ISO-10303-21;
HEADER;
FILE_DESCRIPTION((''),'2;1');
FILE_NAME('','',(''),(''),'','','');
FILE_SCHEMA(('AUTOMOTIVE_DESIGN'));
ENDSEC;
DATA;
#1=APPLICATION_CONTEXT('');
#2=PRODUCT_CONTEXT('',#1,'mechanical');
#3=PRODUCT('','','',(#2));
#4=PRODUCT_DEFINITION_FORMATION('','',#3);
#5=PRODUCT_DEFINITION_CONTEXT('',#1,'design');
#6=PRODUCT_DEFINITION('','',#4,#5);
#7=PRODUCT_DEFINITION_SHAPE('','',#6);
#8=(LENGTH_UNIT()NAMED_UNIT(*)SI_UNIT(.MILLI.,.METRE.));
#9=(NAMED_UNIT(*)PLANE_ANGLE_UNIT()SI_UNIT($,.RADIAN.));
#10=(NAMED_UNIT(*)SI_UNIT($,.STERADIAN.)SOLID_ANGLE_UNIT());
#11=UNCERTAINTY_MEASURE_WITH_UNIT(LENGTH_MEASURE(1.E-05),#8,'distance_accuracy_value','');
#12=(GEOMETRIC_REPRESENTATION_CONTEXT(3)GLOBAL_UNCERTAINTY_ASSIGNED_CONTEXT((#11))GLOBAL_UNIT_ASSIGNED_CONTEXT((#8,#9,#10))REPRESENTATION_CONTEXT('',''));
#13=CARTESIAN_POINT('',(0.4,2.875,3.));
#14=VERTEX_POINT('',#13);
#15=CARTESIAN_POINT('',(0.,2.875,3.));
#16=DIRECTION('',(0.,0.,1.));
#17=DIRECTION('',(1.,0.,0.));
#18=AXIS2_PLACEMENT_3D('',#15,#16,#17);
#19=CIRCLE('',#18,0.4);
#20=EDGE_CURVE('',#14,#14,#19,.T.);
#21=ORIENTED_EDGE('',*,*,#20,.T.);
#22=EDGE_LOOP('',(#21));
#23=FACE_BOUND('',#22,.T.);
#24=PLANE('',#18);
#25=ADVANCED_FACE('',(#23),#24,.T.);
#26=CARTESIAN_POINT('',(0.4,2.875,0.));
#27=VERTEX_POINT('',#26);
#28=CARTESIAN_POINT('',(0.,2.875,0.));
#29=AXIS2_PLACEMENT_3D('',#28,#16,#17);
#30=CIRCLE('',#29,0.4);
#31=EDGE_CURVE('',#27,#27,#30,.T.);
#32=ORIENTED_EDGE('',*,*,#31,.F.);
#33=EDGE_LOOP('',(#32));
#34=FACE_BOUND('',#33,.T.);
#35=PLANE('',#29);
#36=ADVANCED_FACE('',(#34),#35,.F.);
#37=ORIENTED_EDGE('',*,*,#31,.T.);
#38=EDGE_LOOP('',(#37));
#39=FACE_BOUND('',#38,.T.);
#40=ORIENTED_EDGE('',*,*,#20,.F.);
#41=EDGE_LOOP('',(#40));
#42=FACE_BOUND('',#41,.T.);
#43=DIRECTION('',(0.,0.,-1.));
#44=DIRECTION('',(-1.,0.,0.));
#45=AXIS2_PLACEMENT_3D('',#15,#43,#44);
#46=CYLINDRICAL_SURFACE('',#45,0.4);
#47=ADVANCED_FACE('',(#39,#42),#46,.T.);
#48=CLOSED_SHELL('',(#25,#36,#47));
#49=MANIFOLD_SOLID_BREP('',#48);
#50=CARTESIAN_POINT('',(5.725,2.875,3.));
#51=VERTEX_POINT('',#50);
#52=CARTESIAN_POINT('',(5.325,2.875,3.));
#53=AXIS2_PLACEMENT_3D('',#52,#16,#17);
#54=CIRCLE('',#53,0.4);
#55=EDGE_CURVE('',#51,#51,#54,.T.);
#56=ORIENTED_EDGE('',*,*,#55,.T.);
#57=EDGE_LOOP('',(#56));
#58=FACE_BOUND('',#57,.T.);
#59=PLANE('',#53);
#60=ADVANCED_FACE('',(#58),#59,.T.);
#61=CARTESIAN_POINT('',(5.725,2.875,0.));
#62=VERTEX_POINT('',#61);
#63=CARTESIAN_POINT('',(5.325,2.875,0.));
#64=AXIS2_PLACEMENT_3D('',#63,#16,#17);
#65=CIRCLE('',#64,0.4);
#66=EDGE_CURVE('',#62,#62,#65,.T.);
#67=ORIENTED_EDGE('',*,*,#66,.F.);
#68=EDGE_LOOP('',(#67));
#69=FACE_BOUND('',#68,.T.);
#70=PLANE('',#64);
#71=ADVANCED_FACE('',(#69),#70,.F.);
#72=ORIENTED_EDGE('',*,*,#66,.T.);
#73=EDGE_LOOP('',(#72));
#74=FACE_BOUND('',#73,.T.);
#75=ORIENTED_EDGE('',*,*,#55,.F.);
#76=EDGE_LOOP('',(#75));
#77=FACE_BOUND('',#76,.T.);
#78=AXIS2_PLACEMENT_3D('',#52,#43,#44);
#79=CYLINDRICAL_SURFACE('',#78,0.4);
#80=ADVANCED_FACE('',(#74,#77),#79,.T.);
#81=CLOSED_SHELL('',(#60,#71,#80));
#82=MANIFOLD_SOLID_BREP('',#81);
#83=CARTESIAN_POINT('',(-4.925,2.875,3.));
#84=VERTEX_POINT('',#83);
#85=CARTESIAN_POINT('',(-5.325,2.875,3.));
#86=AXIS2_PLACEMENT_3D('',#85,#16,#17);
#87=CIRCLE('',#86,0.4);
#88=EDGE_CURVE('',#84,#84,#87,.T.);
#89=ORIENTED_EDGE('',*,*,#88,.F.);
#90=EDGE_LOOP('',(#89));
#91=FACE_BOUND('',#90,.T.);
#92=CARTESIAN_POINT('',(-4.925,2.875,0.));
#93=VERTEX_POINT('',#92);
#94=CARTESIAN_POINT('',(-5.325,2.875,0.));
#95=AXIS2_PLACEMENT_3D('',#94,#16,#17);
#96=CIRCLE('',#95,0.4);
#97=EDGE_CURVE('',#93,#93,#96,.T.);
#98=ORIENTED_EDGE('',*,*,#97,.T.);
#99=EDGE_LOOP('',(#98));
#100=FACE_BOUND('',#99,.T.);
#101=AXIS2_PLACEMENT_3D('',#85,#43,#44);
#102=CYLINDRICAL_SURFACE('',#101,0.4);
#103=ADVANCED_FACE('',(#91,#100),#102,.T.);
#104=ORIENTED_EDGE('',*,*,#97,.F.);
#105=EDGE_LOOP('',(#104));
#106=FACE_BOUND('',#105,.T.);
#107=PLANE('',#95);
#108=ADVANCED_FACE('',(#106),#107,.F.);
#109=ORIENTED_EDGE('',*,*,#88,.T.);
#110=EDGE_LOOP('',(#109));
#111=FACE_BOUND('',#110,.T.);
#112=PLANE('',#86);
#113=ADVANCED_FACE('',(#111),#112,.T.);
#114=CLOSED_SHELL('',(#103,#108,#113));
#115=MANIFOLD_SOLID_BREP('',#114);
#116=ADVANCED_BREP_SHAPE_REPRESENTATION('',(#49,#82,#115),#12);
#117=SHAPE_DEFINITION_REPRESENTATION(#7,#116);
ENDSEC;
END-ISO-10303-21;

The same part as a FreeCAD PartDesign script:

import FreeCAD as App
import Part
import Sketcher
Q = App.Units.Quantity

doc = App.newDocument("Part")
params = doc.addObject("Spreadsheet::Sheet", "Params")
for row, (alias, value) in enumerate([
    ("sketch1_diameter", "0.8 mm"),
    ("pad1_length", "3 mm"),
    ("sketch2_diameter", "0.8 mm"),
    ("pad2_length", "3 mm"),
    ("sketch3_diameter", "0.8 mm"),
    ("pad3_length", "3 mm"),
], start=1):
    params.set(f"A{row}", alias)
    params.set(f"B{row}", "=" + value)
    params.setAlias(f"B{row}", alias)

body = doc.addObject("PartDesign::Body", "Body")

# Sketch on XY plane
sketch1 = body.newObject("Sketcher::SketchObject", "Sketch")
sketch1.AttachmentSupport = (doc.getObject("XY_Plane"), [""])
sketch1.MapMode = "FlatFace"
sketch1.addGeometry(Part.Circle(App.Vector(0, 2.88, 0), App.Vector(0, 0, 1), 0.4), False)
sketch1.addConstraint(Sketcher.Constraint("PointOnObject", 0, 3, -2))
sketch1.addConstraint(Sketcher.Constraint("Diameter", 0, Q("0.8 mm")))
sketch1.addConstraint(Sketcher.Constraint("DistanceY", -1, 1, 0, 3, Q("2.875 mm")))
sketch1.setExpression("Constraints[1]", "Params.sketch1_diameter")
pad1 = body.newObject("PartDesign::Pad", "Pad")
pad1.Profile = sketch1
pad1.setExpression("Length", "Params.pad1_length")
body2 = doc.addObject("PartDesign::Body", "Body001")

# Sketch on XY plane
sketch2 = body2.newObject("Sketcher::SketchObject", "Sketch001")
sketch2.AttachmentSupport = (doc.getObject("XY_Plane001"), [""])
sketch2.MapMode = "FlatFace"
sketch2.addGeometry(Part.Circle(App.Vector(-5.33, 2.88, 0), App.Vector(0, 0, 1), 0.4), False)
sketch2.addConstraint(Sketcher.Constraint("Diameter", 0, Q("0.8 mm")))
sketch2.addConstraint(Sketcher.Constraint("DistanceX", 0, 3, -1, 1, Q("5.325 mm")))
sketch2.addConstraint(Sketcher.Constraint("DistanceY", -1, 1, 0, 3, Q("2.875 mm")))
sketch2.setExpression("Constraints[0]", "Params.sketch2_diameter")
pad2 = body2.newObject("PartDesign::Pad", "Pad001")
pad2.Profile = sketch2
pad2.setExpression("Length", "Params.pad2_length")
body3 = doc.addObject("PartDesign::Body", "Body002")

# Sketch on XY plane
sketch3 = body3.newObject("Sketcher::SketchObject", "Sketch002")
sketch3.AttachmentSupport = (doc.getObject("XY_Plane002"), [""])
sketch3.MapMode = "FlatFace"
sketch3.addGeometry(Part.Circle(App.Vector(5.33, 2.88, 0), App.Vector(0, 0, 1), 0.4), False)
sketch3.addConstraint(Sketcher.Constraint("Diameter", 0, Q("0.8 mm")))
sketch3.addConstraint(Sketcher.Constraint("DistanceX", -1, 1, 0, 3, Q("5.325 mm")))
sketch3.addConstraint(Sketcher.Constraint("DistanceY", -1, 1, 0, 3, Q("2.875 mm")))
sketch3.setExpression("Constraints[0]", "Params.sketch3_diameter")
pad3 = body3.newObject("PartDesign::Pad", "Pad002")
pad3.Profile = sketch3
pad3.setExpression("Length", "Params.pad3_length")

doc.recompute()
